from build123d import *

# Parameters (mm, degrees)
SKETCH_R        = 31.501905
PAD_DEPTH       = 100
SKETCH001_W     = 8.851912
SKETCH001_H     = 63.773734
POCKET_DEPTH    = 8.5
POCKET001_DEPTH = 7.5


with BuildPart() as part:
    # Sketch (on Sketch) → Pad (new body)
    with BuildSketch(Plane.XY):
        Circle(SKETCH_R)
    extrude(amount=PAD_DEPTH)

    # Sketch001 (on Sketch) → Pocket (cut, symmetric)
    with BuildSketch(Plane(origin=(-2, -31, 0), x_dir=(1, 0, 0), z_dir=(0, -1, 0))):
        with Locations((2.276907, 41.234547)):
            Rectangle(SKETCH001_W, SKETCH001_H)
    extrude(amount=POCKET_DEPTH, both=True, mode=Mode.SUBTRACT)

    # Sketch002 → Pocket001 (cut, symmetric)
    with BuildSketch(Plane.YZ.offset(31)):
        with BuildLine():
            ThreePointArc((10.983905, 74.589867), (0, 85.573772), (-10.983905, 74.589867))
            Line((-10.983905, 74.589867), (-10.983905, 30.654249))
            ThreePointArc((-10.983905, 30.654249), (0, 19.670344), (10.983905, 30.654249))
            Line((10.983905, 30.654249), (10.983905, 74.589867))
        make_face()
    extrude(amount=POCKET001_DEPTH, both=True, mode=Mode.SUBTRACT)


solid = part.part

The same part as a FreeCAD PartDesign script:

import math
import FreeCAD as App
import Part
import Sketcher
from FreeCAD import Vector


def add_polygon(sketch, points):
    """Adds a closed chain of lines whose ends are joined by coincident constraints."""
    first, n = sketch.GeometryCount, len(points)
    for a, b in zip(points, points[1:] + points[:1]):
        sketch.addGeometry(Part.LineSegment(App.Vector(*a, 0), App.Vector(*b, 0)), False)
    for i in range(n):
        sketch.addConstraint(Sketcher.Constraint("Coincident", first + i, 2, first + (i + 1) % n, 1))

doc = App.newDocument("Part")
body = doc.addObject("PartDesign::Body", "Body")

# Sketch on XY plane
sketch1 = body.newObject("Sketcher::SketchObject", "Sketch")
sketch1.AttachmentSupport = (doc.getObject("XY_Plane"), [""])
sketch1.MapMode = "FlatFace"
sketch1.addGeometry(Part.Circle(Vector(0, 0, 0), Vector(0, 0, 1), 31.501905), False)
sketch1.addConstraint([
    Sketcher.Constraint("Coincident", 0, 3, -1, 1),
    Sketcher.Constraint("Diameter", 0, 63.00381),
])
pad1 = body.newObject("PartDesign::Pad", "Pad")
pad1.Profile = sketch1
pad1.Length = 100

# Sketch on XZ plane
sketch2 = body.newObject("Sketcher::SketchObject", "Sketch001")
sketch2.AttachmentSupport = (doc.getObject("XZ_Plane"), [""])
sketch2.MapMode = "FlatFace"
sketch2.AttachmentOffset = App.Placement(Vector(0, 0, 31), App.Rotation())
add_polygon(sketch2, [(-4.149049, 73.121414), (-4.149049, 9.34768), (4.702863, 9.34768), (4.702863, 73.121414)])  # lines 0-3
sketch2.addConstraint([
    Sketcher.Constraint("Vertical", 0),
    Sketcher.Constraint("Horizontal", 1),
    Sketcher.Constraint("Vertical", 2),
    Sketcher.Constraint("Horizontal", 3),
    Sketcher.Constraint("DistanceX", 1, 1, 1, 2, 8.851912),
    Sketcher.Constraint("DistanceY", 0, 2, 0, 1, 63.773734),
    Sketcher.Constraint("DistanceX", 0, 2, -1, 1, 4.149049),
    Sketcher.Constraint("DistanceY", -1, 1, 0, 2, 9.34768),
])
pocket1 = body.newObject("PartDesign::Pocket", "Pocket")
pocket1.Profile = sketch2
pocket1.Length = 17
pocket1.Midplane = True

# Sketch on YZ plane
sketch3 = body.newObject("Sketcher::SketchObject", "Sketch002")
sketch3.AttachmentSupport = (doc.getObject("YZ_Plane"), [""])
sketch3.MapMode = "FlatFace"
sketch3.AttachmentOffset = App.Placement(Vector(0, 0, 31), App.Rotation())
sketch3.addGeometry([
    Part.ArcOfCircle(Part.Circle(Vector(0, 74.589867, 0), Vector(0, 0, 1), 10.983905), math.radians(0), math.radians(180)),
    Part.LineSegment(Vector(-10.983905, 74.589867, 0), Vector(-10.983905, 30.654249, 0)),
    Part.ArcOfCircle(Part.Circle(Vector(0, 30.654249, 0), Vector(0, 0, 1), 10.983905), math.radians(180), math.radians(360)),
    Part.LineSegment(Vector(10.983905, 30.654249, 0), Vector(10.983905, 74.589867, 0)),
], False)
sketch3.addConstraint([
    Sketcher.Constraint("Tangent", 0, 2, 1, 1),
    Sketcher.Constraint("Tangent", 1, 2, 2, 1),
    Sketcher.Constraint("Tangent", 2, 2, 3, 1),
    Sketcher.Constraint("Tangent", 3, 2, 0, 1),
    Sketcher.Constraint("Vertical", 1),
    Sketcher.Constraint("Vertical", 3),
    Sketcher.Constraint("PointOnObject", 0, 3, -2),
    Sketcher.Constraint("Radius", 0, 10.983905),
    Sketcher.Constraint("DistanceY", 1, 2, 1, 1, 43.935618),
    Sketcher.Constraint("DistanceY", -1, 1, 2, 3, 30.654249),
])
pocket2 = body.newObject("PartDesign::Pocket", "Pocket001")
pocket2.Profile = sketch3
pocket2.Length = 15
pocket2.Midplane = True

doc.recompute()
